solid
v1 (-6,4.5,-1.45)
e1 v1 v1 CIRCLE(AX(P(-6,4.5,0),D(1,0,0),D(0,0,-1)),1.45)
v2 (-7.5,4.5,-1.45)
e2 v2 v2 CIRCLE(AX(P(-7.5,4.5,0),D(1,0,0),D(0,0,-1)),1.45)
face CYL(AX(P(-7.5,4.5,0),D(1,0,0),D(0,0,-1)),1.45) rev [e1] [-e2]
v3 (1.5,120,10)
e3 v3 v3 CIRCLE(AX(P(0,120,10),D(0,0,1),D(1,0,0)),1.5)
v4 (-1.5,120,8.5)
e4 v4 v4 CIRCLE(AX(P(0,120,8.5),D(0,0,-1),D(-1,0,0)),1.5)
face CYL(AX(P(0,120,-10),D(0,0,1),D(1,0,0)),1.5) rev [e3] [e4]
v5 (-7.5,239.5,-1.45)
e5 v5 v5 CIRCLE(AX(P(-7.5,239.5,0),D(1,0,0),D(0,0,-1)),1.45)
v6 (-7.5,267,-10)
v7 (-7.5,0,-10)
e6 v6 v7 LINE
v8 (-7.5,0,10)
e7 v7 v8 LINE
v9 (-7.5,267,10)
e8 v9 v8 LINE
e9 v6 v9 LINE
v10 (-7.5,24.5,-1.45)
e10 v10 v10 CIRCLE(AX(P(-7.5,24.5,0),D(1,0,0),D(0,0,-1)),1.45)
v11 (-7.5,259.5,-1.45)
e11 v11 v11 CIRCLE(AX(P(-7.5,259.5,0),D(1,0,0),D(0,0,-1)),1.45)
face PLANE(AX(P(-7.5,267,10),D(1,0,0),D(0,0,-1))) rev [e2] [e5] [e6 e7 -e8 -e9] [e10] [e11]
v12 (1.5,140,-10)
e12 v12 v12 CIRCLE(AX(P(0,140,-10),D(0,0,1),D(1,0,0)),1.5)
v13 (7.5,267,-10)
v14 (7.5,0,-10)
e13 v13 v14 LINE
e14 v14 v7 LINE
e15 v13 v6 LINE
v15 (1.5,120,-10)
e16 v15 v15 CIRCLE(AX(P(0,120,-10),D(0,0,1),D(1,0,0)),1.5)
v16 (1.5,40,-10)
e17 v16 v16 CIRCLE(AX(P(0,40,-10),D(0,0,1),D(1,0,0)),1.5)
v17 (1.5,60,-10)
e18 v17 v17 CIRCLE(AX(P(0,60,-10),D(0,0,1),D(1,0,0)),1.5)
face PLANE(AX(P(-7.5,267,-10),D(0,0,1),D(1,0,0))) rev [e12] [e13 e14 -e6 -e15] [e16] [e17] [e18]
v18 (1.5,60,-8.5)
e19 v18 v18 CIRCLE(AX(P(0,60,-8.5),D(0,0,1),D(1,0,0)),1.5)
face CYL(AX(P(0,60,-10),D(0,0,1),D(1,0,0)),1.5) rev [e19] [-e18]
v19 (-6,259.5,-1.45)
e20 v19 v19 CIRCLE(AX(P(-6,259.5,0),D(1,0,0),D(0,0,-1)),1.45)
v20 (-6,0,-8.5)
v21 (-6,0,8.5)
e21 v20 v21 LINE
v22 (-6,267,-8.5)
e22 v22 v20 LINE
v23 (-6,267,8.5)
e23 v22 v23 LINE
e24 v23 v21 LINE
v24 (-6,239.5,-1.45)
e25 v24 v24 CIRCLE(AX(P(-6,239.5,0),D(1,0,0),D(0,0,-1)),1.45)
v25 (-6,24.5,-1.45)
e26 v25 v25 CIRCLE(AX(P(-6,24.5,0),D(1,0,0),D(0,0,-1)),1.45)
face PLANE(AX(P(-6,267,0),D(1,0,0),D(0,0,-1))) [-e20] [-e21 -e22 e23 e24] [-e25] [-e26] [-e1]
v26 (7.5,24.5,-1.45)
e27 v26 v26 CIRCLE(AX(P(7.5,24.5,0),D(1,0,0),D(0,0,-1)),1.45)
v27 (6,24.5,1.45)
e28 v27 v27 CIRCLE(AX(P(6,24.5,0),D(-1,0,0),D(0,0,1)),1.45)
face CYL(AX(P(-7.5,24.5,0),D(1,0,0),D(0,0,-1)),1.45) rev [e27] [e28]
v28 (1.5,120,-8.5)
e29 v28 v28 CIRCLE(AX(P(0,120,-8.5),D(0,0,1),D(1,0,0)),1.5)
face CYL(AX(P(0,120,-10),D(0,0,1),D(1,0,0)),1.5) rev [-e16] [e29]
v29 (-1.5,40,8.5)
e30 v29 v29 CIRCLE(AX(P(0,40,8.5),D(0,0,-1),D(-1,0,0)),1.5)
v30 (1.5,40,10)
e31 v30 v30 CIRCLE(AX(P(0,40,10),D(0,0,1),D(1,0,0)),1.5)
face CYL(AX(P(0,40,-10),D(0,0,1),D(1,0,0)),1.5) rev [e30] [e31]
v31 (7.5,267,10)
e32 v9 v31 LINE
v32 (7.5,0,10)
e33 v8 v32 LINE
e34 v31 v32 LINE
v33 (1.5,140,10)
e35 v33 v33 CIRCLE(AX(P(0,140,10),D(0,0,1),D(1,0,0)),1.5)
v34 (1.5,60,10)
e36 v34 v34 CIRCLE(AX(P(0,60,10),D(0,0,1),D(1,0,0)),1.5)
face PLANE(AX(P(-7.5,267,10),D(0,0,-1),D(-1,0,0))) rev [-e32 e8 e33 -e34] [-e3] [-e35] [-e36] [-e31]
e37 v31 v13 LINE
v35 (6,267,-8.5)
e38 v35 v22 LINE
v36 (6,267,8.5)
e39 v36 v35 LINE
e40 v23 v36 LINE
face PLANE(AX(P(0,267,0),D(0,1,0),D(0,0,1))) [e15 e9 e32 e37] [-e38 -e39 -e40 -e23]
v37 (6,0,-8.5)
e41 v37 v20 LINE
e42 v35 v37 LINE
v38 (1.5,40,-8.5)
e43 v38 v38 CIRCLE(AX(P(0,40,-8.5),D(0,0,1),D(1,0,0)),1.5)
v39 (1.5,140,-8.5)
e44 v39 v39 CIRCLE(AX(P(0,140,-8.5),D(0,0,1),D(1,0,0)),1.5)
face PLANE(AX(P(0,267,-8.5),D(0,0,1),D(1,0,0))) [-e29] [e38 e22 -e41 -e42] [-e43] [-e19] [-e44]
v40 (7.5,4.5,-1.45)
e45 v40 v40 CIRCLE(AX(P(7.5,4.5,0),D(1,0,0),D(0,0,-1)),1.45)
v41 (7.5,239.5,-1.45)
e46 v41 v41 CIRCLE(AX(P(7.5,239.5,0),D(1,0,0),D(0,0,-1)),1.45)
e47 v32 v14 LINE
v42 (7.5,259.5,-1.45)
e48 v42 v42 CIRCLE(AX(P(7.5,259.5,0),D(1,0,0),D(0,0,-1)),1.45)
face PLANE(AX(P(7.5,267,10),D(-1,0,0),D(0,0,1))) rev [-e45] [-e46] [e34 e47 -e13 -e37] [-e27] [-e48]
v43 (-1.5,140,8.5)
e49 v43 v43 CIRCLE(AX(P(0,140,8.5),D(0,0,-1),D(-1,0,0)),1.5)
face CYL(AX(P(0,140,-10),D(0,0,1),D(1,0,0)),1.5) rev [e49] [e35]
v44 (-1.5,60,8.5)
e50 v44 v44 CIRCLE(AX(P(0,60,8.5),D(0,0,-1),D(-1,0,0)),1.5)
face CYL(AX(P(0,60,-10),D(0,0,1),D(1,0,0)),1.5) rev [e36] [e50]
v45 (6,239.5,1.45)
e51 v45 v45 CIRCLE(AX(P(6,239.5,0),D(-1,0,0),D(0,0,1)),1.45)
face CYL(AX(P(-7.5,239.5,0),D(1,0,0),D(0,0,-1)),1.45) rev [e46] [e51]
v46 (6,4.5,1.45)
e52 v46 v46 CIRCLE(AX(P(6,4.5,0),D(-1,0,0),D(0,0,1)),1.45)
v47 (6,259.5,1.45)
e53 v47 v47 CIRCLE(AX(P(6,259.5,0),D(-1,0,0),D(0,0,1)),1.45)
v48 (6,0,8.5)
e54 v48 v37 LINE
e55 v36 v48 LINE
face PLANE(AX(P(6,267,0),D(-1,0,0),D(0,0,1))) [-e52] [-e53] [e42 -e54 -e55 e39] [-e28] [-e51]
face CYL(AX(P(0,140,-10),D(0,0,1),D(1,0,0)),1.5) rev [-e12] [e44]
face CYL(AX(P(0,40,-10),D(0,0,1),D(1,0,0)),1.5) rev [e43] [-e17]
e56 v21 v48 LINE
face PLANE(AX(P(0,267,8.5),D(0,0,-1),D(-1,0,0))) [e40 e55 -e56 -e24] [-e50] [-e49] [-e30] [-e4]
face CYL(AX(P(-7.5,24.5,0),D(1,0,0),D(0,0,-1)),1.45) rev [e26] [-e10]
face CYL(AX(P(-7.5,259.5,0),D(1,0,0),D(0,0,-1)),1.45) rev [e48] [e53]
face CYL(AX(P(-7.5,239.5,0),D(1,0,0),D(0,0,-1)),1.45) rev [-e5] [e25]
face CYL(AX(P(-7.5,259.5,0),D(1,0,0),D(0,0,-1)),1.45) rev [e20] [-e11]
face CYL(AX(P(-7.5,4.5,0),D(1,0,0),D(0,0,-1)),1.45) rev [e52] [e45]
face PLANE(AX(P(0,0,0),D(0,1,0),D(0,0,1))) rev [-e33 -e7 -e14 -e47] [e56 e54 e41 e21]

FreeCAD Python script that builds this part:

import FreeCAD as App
import Part
import Sketcher
Q = App.Units.Quantity


def add_polygon(sketch, points):
    """Adds a closed chain of lines whose ends are joined by coincident constraints."""
    first, n = sketch.GeometryCount, len(points)
    for a, b in zip(points, points[1:] + points[:1]):
        sketch.addGeometry(Part.LineSegment(App.Vector(*a, 0), App.Vector(*b, 0)), False)
    for i in range(n):
        sketch.addConstraint(Sketcher.Constraint("Coincident", first + i, 2, first + (i + 1) % n, 1))

doc = App.newDocument("Part")
body = doc.addObject("PartDesign::Body", "Body")

# Sketch on XZ plane
sketch1 = doc.addObject("Sketcher::SketchObject", "Sketch")
body.addObject(sketch1)
sketch1.AttachmentSupport = (doc.XZ_Plane, [""])
sketch1.MapMode = "FlatFace"
add_polygon(sketch1, [(-8, -10), (-8, 10), (8, 10), (8, -10)])  # lines 0-3
add_polygon(sketch1, [(6, 8), (-6, 8), (-6, -8), (6, -8)])  # lines 4-7
sketch1.addConstraint([
    Sketcher.Constraint("Vertical", 0),
    Sketcher.Constraint("Horizontal", 1),
    Sketcher.Constraint("Vertical", 2),
    Sketcher.Constraint("Horizontal", 3),
    Sketcher.Constraint("Horizontal", 4),
    Sketcher.Constraint("Vertical", 5),
    Sketcher.Constraint("Horizontal", 6),
    Sketcher.Constraint("Vertical", 7),
    Sketcher.Constraint("Symmetric", 0, 2, 2, 2, -1, 1),
    Sketcher.Constraint("Symmetric", 4, 2, 6, 2, -1, 1),
    Sketcher.Constraint("DistanceX", 1, 1, 1, 2, Q("15 mm")),
    Sketcher.Constraint("DistanceX", 4, 2, 4, 1, Q("12 mm")),
    Sketcher.Constraint("DistanceY", 0, 1, 0, 2, Q("20 mm")),
    Sketcher.Constraint("DistanceY", 5, 2, 5, 1, Q("17 mm")),
])
pad1 = doc.addObject("PartDesign::Pad", "Pad")
body.addObject(pad1)
pad1.Profile = sketch1
pad1.Length = 267
pad1.Reversed = True

# Sketch on YZ plane
sketch2 = doc.addObject("Sketcher::SketchObject", "Sketch001")
body.addObject(sketch2)
sketch2.AttachmentSupport = (doc.YZ_Plane, [""])
sketch2.MapMode = "FlatFace"
sketch2.AttachmentOffset = App.Placement(App.Vector(0, 0, 7.5), App.Rotation())
sketch2.addGeometry([
    Part.Circle(App.Vector(259.5, 0, 0), App.Vector(0, 0, 1), 1.4),
    Part.Circle(App.Vector(239.5, 0, 0), App.Vector(0, 0, 1), 1.4),
    Part.Circle(App.Vector(24.5, 0, 0), App.Vector(0, 0, 1), 1.4),
    Part.Circle(App.Vector(4.5, 0, 0), App.Vector(0, 0, 1), 1.4),
], False)
sketch2.addConstraint([
    Sketcher.Constraint("Equal", 0, 1),
    Sketcher.Constraint("Equal", 1, 2),
    Sketcher.Constraint("Equal", 2, 3),
    Sketcher.Constraint("PointOnObject", 0, 3, -1),
    Sketcher.Constraint("PointOnObject", 1, 3, -1),
    Sketcher.Constraint("PointOnObject", 2, 3, -1),
    Sketcher.Constraint("PointOnObject", 3, 3, -1),
    Sketcher.Constraint("Diameter", 0, Q("2.9 mm")),
    Sketcher.Constraint("DistanceX", 1, 3, 0, 3, Q("20 mm")),
    Sketcher.Constraint("DistanceX", 2, 3, 1, 3, Q("215 mm")),
    Sketcher.Constraint("DistanceX", 3, 3, 2, 3, Q("20 mm")),
    Sketcher.Constraint("DistanceX", -1, 1, 0, 3, Q("259.5 mm")),
])
pocket1 = doc.addObject("PartDesign::Pocket", "Pocket")
body.addObject(pocket1)
pocket1.Profile = sketch2
pocket1.Type = "ThroughAll"

# Sketch on XY plane
sketch3 = doc.addObject("Sketcher::SketchObject", "Sketch002")
body.addObject(sketch3)
sketch3.AttachmentSupport = (doc.XY_Plane, [""])
sketch3.MapMode = "FlatFace"
sketch3.AttachmentOffset = App.Placement(App.Vector(0, 0, 10), App.Rotation())
sketch3.addGeometry([
    Part.Circle(App.Vector(0, 40, 0), App.Vector(0, 0, 1), 1.5),
    Part.Circle(App.Vector(0, 60, 0), App.Vector(0, 0, 1), 1.5),
    Part.Circle(App.Vector(0, 120, 0), App.Vector(0, 0, 1), 1.5),
    Part.Circle(App.Vector(0, 140, 0), App.Vector(0, 0, 1), 1.5),
], False)
sketch3.addConstraint([
    Sketcher.Constraint("Equal", 0, 1),
    Sketcher.Constraint("Equal", 1, 2),
    Sketcher.Constraint("Equal", 2, 3),
    Sketcher.Constraint("PointOnObject", 0, 3, -2),
    Sketcher.Constraint("PointOnObject", 1, 3, -2),
    Sketcher.Constraint("PointOnObject", 2, 3, -2),
    Sketcher.Constraint("PointOnObject", 3, 3, -2),
    Sketcher.Constraint("Diameter", 0, Q("3 mm")),
    Sketcher.Constraint("DistanceY", -1, 1, 0, 3, Q("40 mm")),
    Sketcher.Constraint("DistanceY", -1, 1, 1, 3, Q("60 mm")),
    Sketcher.Constraint("DistanceY", -1, 1, 2, 3, Q("120 mm")),
    Sketcher.Constraint("DistanceY", -1, 1, 3, 3, Q("140 mm")),
])
pocket2 = doc.addObject("PartDesign::Pocket", "Pocket001")
body.addObject(pocket2)
pocket2.Profile = sketch3
pocket2.Type = "ThroughAll"

doc.recompute()
